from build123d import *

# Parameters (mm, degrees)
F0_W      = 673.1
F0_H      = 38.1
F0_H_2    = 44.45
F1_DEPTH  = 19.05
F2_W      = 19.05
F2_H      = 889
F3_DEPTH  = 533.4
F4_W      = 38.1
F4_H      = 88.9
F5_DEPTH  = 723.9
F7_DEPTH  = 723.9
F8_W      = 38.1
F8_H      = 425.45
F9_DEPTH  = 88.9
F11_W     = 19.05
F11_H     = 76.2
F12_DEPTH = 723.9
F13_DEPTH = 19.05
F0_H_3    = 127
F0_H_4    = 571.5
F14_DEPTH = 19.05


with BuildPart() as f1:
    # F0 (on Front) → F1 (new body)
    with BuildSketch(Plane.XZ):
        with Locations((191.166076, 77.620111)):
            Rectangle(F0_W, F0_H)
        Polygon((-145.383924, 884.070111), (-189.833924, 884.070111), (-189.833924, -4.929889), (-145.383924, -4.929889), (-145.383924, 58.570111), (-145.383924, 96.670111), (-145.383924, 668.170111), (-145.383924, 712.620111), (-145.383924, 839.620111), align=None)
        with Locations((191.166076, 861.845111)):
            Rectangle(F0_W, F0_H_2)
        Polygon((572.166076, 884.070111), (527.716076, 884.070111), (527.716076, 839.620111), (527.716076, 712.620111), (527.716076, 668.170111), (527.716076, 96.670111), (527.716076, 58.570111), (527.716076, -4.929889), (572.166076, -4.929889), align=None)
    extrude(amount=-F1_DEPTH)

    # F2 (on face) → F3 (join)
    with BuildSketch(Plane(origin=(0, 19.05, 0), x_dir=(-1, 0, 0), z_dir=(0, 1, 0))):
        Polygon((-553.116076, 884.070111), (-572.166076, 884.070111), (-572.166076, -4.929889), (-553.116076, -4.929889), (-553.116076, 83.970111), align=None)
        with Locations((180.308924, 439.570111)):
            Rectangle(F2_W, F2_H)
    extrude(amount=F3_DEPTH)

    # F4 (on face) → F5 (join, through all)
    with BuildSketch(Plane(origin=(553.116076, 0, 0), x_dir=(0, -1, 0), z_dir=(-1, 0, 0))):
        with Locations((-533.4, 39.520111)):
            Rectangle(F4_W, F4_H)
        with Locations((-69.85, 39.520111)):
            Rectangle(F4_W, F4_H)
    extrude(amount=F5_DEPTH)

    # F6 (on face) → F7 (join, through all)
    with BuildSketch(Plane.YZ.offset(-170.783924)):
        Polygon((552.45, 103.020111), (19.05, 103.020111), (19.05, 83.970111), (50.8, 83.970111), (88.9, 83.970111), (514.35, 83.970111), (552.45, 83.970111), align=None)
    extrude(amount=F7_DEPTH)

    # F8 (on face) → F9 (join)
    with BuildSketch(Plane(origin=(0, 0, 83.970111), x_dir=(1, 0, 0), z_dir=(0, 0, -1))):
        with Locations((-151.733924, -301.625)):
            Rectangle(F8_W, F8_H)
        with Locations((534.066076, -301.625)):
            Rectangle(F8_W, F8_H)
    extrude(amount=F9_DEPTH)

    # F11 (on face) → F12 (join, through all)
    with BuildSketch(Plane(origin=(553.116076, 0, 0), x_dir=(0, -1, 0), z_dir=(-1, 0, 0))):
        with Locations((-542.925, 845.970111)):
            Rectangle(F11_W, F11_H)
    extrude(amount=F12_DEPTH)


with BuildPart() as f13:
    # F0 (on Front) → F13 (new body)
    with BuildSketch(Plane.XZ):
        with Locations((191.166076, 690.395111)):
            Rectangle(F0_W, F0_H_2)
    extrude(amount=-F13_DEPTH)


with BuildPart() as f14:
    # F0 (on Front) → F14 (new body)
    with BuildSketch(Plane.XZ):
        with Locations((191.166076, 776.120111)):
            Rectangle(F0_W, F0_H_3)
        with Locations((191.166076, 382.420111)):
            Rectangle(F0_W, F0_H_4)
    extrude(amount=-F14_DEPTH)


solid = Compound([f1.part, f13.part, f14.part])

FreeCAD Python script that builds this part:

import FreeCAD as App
import Part
import Sketcher
Q = App.Units.Quantity

doc = App.newDocument("Part")
body = doc.addObject("PartDesign::Body", "Body")

# Sketch on XZ plane
sketch1 = body.newObject("Sketcher::SketchObject", "Sketch")
sketch1.AttachmentSupport = (doc.getObject("XZ_Plane"), [""])
sketch1.MapMode = "FlatFace"
sketch1.addGeometry(Part.LineSegment(App.Vector(-145, 59, 0), App.Vector(528, 59, 0)), False)
sketch1.addGeometry(Part.LineSegment(App.Vector(528, 59, 0), App.Vector(528, -5, 0)), False)
sketch1.addGeometry(Part.LineSegment(App.Vector(528, -5, 0), App.Vector(572, -5, 0)), False)
sketch1.addGeometry(Part.LineSegment(App.Vector(572, -5, 0), App.Vector(572, 884, 0)), False)
sketch1.addGeometry(Part.LineSegment(App.Vector(572, 884, 0), App.Vector(-190, 884, 0)), False)
sketch1.addGeometry(Part.LineSegment(App.Vector(-190, 884, 0), App.Vector(-190, -5, 0)), False)
sketch1.addGeometry(Part.LineSegment(App.Vector(-190, -5, 0), App.Vector(-145, -5, 0)), False)
sketch1.addGeometry(Part.LineSegment(App.Vector(-145, -5, 0), App.Vector(-145, 59, 0)), False)
sketch1.addGeometry(Part.LineSegment(App.Vector(528, 97, 0), App.Vector(-145, 97, 0)), False)
sketch1.addGeometry(Part.LineSegment(App.Vector(-145, 97, 0), App.Vector(-145, 840, 0)), False)
sketch1.addGeometry(Part.LineSegment(App.Vector(-145, 840, 0), App.Vector(528, 840, 0)), False)
sketch1.addGeometry(Part.LineSegment(App.Vector(528, 840, 0), App.Vector(528, 97, 0)), False)
sketch1.addConstraint(Sketcher.Constraint("Coincident", 0, 2, 1, 1))
sketch1.addConstraint(Sketcher.Constraint("Coincident", 1, 2, 2, 1))
sketch1.addConstraint(Sketcher.Constraint("Coincident", 2, 2, 3, 1))
sketch1.addConstraint(Sketcher.Constraint("Coincident", 3, 2, 4, 1))
sketch1.addConstraint(Sketcher.Constraint("Coincident", 4, 2, 5, 1))
sketch1.addConstraint(Sketcher.Constraint("Coincident", 5, 2, 6, 1))
sketch1.addConstraint(Sketcher.Constraint("Coincident", 6, 2, 7, 1))
sketch1.addConstraint(Sketcher.Constraint("Coincident", 7, 2, 0, 1))
sketch1.addConstraint(Sketcher.Constraint("Coincident", 8, 2, 9, 1))
sketch1.addConstraint(Sketcher.Constraint("Coincident", 9, 2, 10, 1))
sketch1.addConstraint(Sketcher.Constraint("Coincident", 10, 2, 11, 1))
sketch1.addConstraint(Sketcher.Constraint("Coincident", 11, 2, 8, 1))
sketch1.addConstraint(Sketcher.Constraint("Horizontal", 0))
sketch1.addConstraint(Sketcher.Constraint("Vertical", 1))
sketch1.addConstraint(Sketcher.Constraint("Horizontal", 2))
sketch1.addConstraint(Sketcher.Constraint("Vertical", 3))
sketch1.addConstraint(Sketcher.Constraint("Horizontal", 4))
sketch1.addConstraint(Sketcher.Constraint("Vertical", 5))
sketch1.addConstraint(Sketcher.Constraint("Horizontal", 6))
sketch1.addConstraint(Sketcher.Constraint("Vertical", 7))
sketch1.addConstraint(Sketcher.Constraint("Horizontal", 8))
sketch1.addConstraint(Sketcher.Constraint("Vertical", 9))
sketch1.addConstraint(Sketcher.Constraint("Horizontal", 10))
sketch1.addConstraint(Sketcher.Constraint("Vertical", 11))
sketch1.addConstraint(Sketcher.Constraint("Horizontal", 2, 2, 5, 2))
sketch1.addConstraint(Sketcher.Constraint("Vertical", 7, 2, 8, 2))
sketch1.addConstraint(Sketcher.Constraint("Vertical", 1, 2, 10, 2))
sketch1.addConstraint(Sketcher.Constraint("Equal", 2, 6))
sketch1.addConstraint(Sketcher.Constraint("DistanceX", 4, 2, 4, 1, Q("30 in")))
sketch1.addConstraint(Sketcher.Constraint("DistanceY", 3, 1, 3, 2, Q("35 in")))
sketch1.addConstraint(Sketcher.Constraint("DistanceX", 0, 1, 0, 2, Q("26.5 in")))
sketch1.addConstraint(Sketcher.Constraint("DistanceY", 1, 2, 1, 1, Q("2.5 in")))
sketch1.addConstraint(Sketcher.Constraint("DistanceY", 6, 2, 8, 2, Q("4 in")))
sketch1.addConstraint(Sketcher.Constraint("DistanceY", 9, 1, 9, 2, Q("29.25 in")))
sketch1.addConstraint(Sketcher.Constraint("DistanceY", -1, 1, 0, 2, 58.570111))
sketch1.addConstraint(Sketcher.Constraint("DistanceX", -1, 1, 0, 2, 527.716076))
pad1 = body.newObject("PartDesign::Pad", "Pad")
pad1.Profile = sketch1
pad1.Length = Q("0.75 in")
pad1.Reversed = True

# Sketch on XZ plane
sketch2 = body.newObject("Sketcher::SketchObject", "Sketch001")
sketch2.AttachmentSupport = (doc.getObject("XZ_Plane"), [""])
sketch2.MapMode = "FlatFace"
sketch2.AttachmentOffset = App.Placement(App.Vector(0, 0, -0.75 * 25.4), App.Rotation())
sketch2.addGeometry(Part.LineSegment(App.Vector(553, 884, 0), App.Vector(572, 884, 0)), False)
sketch2.addGeometry(Part.LineSegment(App.Vector(572, 884, 0), App.Vector(572, -5, 0)), False)
sketch2.addGeometry(Part.LineSegment(App.Vector(572, -5, 0), App.Vector(553, -5, 0)), False)
sketch2.addGeometry(Part.LineSegment(App.Vector(553, -5, 0), App.Vector(553, 884, 0)), False)
sketch2.addGeometry(Part.LineSegment(App.Vector(-171, 884, 0), App.Vector(-171, -5, 0)), False)
sketch2.addGeometry(Part.LineSegment(App.Vector(-171, -5, 0), App.Vector(-190, -5, 0)), False)
sketch2.addGeometry(Part.LineSegment(App.Vector(-190, -5, 0), App.Vector(-190, 884, 0)), False)
sketch2.addGeometry(Part.LineSegment(App.Vector(-190, 884, 0), App.Vector(-171, 884, 0)), False)
sketch2.addConstraint(Sketcher.Constraint("Coincident", 0, 2, 1, 1))
sketch2.addConstraint(Sketcher.Constraint("Coincident", 1, 2, 2, 1))
sketch2.addConstraint(Sketcher.Constraint("Coincident", 2, 2, 3, 1))
sketch2.addConstraint(Sketcher.Constraint("Coincident", 3, 2, 0, 1))
sketch2.addConstraint(Sketcher.Constraint("Coincident", 4, 2, 5, 1))
sketch2.addConstraint(Sketcher.Constraint("Coincident", 5, 2, 6, 1))
sketch2.addConstraint(Sketcher.Constraint("Coincident", 6, 2, 7, 1))
sketch2.addConstraint(Sketcher.Constraint("Coincident", 7, 2, 4, 1))
sketch2.addConstraint(Sketcher.Constraint("Horizontal", 0))
sketch2.addConstraint(Sketcher.Constraint("Vertical", 1))
sketch2.addConstraint(Sketcher.Constraint("Horizontal", 2))
sketch2.addConstraint(Sketcher.Constraint("Vertical", 3))
sketch2.addConstraint(Sketcher.Constraint("Vertical", 4))
sketch2.addConstraint(Sketcher.Constraint("Horizontal", 5))
sketch2.addConstraint(Sketcher.Constraint("Vertical", 6))
sketch2.addConstraint(Sketcher.Constraint("Horizontal", 7))
sketch2.addConstraint(Sketcher.Constraint("Horizontal", 2, 2, 4, 2))
sketch2.addConstraint(Sketcher.Constraint("Horizontal", 3, 2, 6, 2))
sketch2.addConstraint(Sketcher.Constraint("Equal", 2, 5))
sketch2.addConstraint(Sketcher.Constraint("DistanceY", 1, 2, 1, 1, Q("35 in")))
sketch2.addConstraint(Sketcher.Constraint("DistanceX", 5, 2, 1, 2, Q("30 in")))
sketch2.addConstraint(Sketcher.Constraint("DistanceX", 0, 1, 0, 2, Q("0.75 in")))
sketch2.addConstraint(Sketcher.Constraint("DistanceY", -1, 1, 0, 2, 884.070111))
sketch2.addConstraint(Sketcher.Constraint("DistanceX", -1, 1, 0, 2, 572.166076))
pad2 = body.newObject("PartDesign::Pad", "Pad001")
pad2.Profile = sketch2
pad2.Length = Q("21 in")
pad2.Reversed = True

# Sketch on YZ plane
sketch3 = body.newObject("Sketcher::SketchObject", "Sketch002")
sketch3.AttachmentSupport = (doc.getObject("YZ_Plane"), [""])
sketch3.MapMode = "FlatFace"
sketch3.AttachmentOffset = App.Placement(App.Vector(0, 0, 553.116076), App.Rotation())
sketch3.addGeometry(Part.LineSegment(App.Vector(552, 84, 0), App.Vector(552, -5, 0)), False)
sketch3.addGeometry(Part.LineSegment(App.Vector(552, -5, 0), App.Vector(514, -5, 0)), False)
sketch3.addGeometry(Part.LineSegment(App.Vector(514, -5, 0), App.Vector(514, 84, 0)), False)
sketch3.addGeometry(Part.LineSegment(App.Vector(514, 84, 0), App.Vector(552, 84, 0)), False)
sketch3.addGeometry(Part.LineSegment(App.Vector(89, 84, 0), App.Vector(89, -5, 0)), False)
sketch3.addGeometry(Part.LineSegment(App.Vector(89, -5, 0), App.Vector(51, -5, 0)), False)
sketch3.addGeometry(Part.LineSegment(App.Vector(51, -5, 0), App.Vector(51, 84, 0)), False)
sketch3.addGeometry(Part.LineSegment(App.Vector(51, 84, 0), App.Vector(89, 84, 0)), False)
sketch3.addConstraint(Sketcher.Constraint("Coincident", 0, 2, 1, 1))
sketch3.addConstraint(Sketcher.Constraint("Coincident", 1, 2, 2, 1))
sketch3.addConstraint(Sketcher.Constraint("Coincident", 2, 2, 3, 1))
sketch3.addConstraint(Sketcher.Constraint("Coincident", 3, 2, 0, 1))
sketch3.addConstraint(Sketcher.Constraint("Coincident", 4, 2, 5, 1))
sketch3.addConstraint(Sketcher.Constraint("Coincident", 5, 2, 6, 1))
sketch3.addConstraint(Sketcher.Constraint("Coincident", 6, 2, 7, 1))
sketch3.addConstraint(Sketcher.Constraint("Coincident", 7, 2, 4, 1))
sketch3.addConstraint(Sketcher.Constraint("Vertical", 0))
sketch3.addConstraint(Sketcher.Constraint("Horizontal", 1))
sketch3.addConstraint(Sketcher.Constraint("Vertical", 2))
sketch3.addConstraint(Sketcher.Constraint("Horizontal", 3))
sketch3.addConstraint(Sketcher.Constraint("Vertical", 4))
sketch3.addConstraint(Sketcher.Constraint("Horizontal", 5))
sketch3.addConstraint(Sketcher.Constraint("Vertical", 6))
sketch3.addConstraint(Sketcher.Constraint("Horizontal", 7))
sketch3.addConstraint(Sketcher.Constraint("Horizontal", 1, 2, 4, 2))
sketch3.addConstraint(Sketcher.Constraint("Horizontal", 3, 2, 6, 2))
sketch3.addConstraint(Sketcher.Constraint("Equal", 3, 5))
sketch3.addConstraint(Sketcher.Constraint("DistanceX", 1, 2, 1, 1, Q("1.5 in")))
sketch3.addConstraint(Sketcher.Constraint("DistanceY", 0, 2, 0, 1, Q("3.5 in")))
sketch3.addConstraint(Sketcher.Constraint("DistanceX", -1, 1, 5, 2, Q("2 in")))
sketch3.addConstraint(Sketcher.Constraint("DistanceX", -1, 1, 0, 2, Q("21.75 in")))
sketch3.addConstraint(Sketcher.Constraint("DistanceY", 0, 2, -1, 1, 4.929889))
pad3 = body.newObject("PartDesign::Pad", "Pad002")
pad3.Profile = sketch3
pad3.Type = "UpToLast"
pad3.Reversed = True

# Sketch on YZ plane
sketch4 = body.newObject("Sketcher::SketchObject", "Sketch003")
sketch4.AttachmentSupport = (doc.getObject("YZ_Plane"), [""])
sketch4.MapMode = "FlatFace"
sketch4.AttachmentOffset = App.Placement(App.Vector(0, 0, -170.783924), App.Rotation())
sketch4.addGeometry(Part.LineSegment(App.Vector(552, 103, 0), App.Vector(19, 103, 0)), False)
sketch4.addGeometry(Part.LineSegment(App.Vector(19, 103, 0), App.Vector(19, 84, 0)), False)
sketch4.addGeometry(Part.LineSegment(App.Vector(19, 84, 0), App.Vector(552, 84, 0)), False)
sketch4.addGeometry(Part.LineSegment(App.Vector(552, 84, 0), App.Vector(552, 103, 0)), False)
sketch4.addConstraint(Sketcher.Constraint("Coincident", 0, 2, 1, 1))
sketch4.addConstraint(Sketcher.Constraint("Coincident", 1, 2, 2, 1))
sketch4.addConstraint(Sketcher.Constraint("Coincident", 2, 2, 3, 1))
sketch4.addConstraint(Sketcher.Constraint("Coincident", 3, 2, 0, 1))
sketch4.addConstraint(Sketcher.Constraint("Horizontal", 0))
sketch4.addConstraint(Sketcher.Constraint("Vertical", 1))
sketch4.addConstraint(Sketcher.Constraint("Horizontal", 2))
sketch4.addConstraint(Sketcher.Constraint("Vertical", 3))
sketch4.addConstraint(Sketcher.Constraint("DistanceX", 0, 2, 0, 1, Q("21 in")))
sketch4.addConstraint(Sketcher.Constraint("DistanceY", 1, 2, 1, 1, Q("0.75 in")))
sketch4.addConstraint(Sketcher.Constraint("DistanceX", -1, 1, 0, 2, Q("0.75 in")))
sketch4.addConstraint(Sketcher.Constraint("DistanceY", -1, 1, 0, 2, 103.020111))
pad4 = body.newObject("PartDesign::Pad", "Pad003")
pad4.Profile = sketch4
pad4.Type = "UpToLast"

# Sketch on XY plane
sketch5 = body.newObject("Sketcher::SketchObject", "Sketch004")
sketch5.AttachmentSupport = (doc.getObject("XY_Plane"), [""])
sketch5.MapMode = "FlatFace"
sketch5.AttachmentOffset = App.Placement(App.Vector(0, 0, 83.970111), App.Rotation())
sketch5.addGeometry(Part.LineSegment(App.Vector(-171, 89, 0), App.Vector(-171, 514, 0)), False)
sketch5.addGeometry(Part.LineSegment(App.Vector(-171, 514, 0), App.Vector(-133, 514, 0)), False)
sketch5.addGeometry(Part.LineSegment(App.Vector(-133, 514, 0), App.Vector(-133, 89, 0)), False)
sketch5.addGeometry(Part.LineSegment(App.Vector(-133, 89, 0), App.Vector(-171, 89, 0)), False)
sketch5.addGeometry(Part.LineSegment(App.Vector(515, 89, 0), App.Vector(515, 514, 0)), False)
sketch5.addGeometry(Part.LineSegment(App.Vector(515, 514, 0), App.Vector(553, 514, 0)), False)
sketch5.addGeometry(Part.LineSegment(App.Vector(553, 514, 0), App.Vector(553, 89, 0)), False)
sketch5.addGeometry(Part.LineSegment(App.Vector(553, 89, 0), App.Vector(515, 89, 0)), False)
sketch5.addConstraint(Sketcher.Constraint("Coincident", 0, 2, 1, 1))
sketch5.addConstraint(Sketcher.Constraint("Coincident", 1, 2, 2, 1))
sketch5.addConstraint(Sketcher.Constraint("Coincident", 2, 2, 3, 1))
sketch5.addConstraint(Sketcher.Constraint("Coincident", 3, 2, 0, 1))
sketch5.addConstraint(Sketcher.Constraint("Coincident", 4, 2, 5, 1))
sketch5.addConstraint(Sketcher.Constraint("Coincident", 5, 2, 6, 1))
sketch5.addConstraint(Sketcher.Constraint("Coincident", 6, 2, 7, 1))
sketch5.addConstraint(Sketcher.Constraint("Coincident", 7, 2, 4, 1))
sketch5.addConstraint(Sketcher.Constraint("Vertical", 0))
sketch5.addConstraint(Sketcher.Constraint("Horizontal", 1))
sketch5.addConstraint(Sketcher.Constraint("Vertical", 2))
sketch5.addConstraint(Sketcher.Constraint("Horizontal", 3))
sketch5.addConstraint(Sketcher.Constraint("Vertical", 4))
sketch5.addConstraint(Sketcher.Constraint("Horizontal", 5))
sketch5.addConstraint(Sketcher.Constraint("Vertical", 6))
sketch5.addConstraint(Sketcher.Constraint("Horizontal", 7))
sketch5.addConstraint(Sketcher.Constraint("Horizontal", 1, 2, 4, 2))
sketch5.addConstraint(Sketcher.Constraint("Horizontal", 3, 2, 6, 2))
sketch5.addConstraint(Sketcher.Constraint("Equal", 3, 5))
sketch5.addConstraint(Sketcher.Constraint("DistanceX", 1, 1, 1, 2, Q("1.5 in")))
sketch5.addConstraint(Sketcher.Constraint("DistanceX", 0, 2, 4, 2, Q("27 in")))
sketch5.addConstraint(Sketcher.Constraint("DistanceY", 0, 1, 0, 2, Q("16.75 in")))
sketch5.addConstraint(Sketcher.Constraint("DistanceY", -1, 1, 2, 2, Q("3.5 in")))
sketch5.addConstraint(Sketcher.Constraint("DistanceX", 0, 2, -1, 1, 170.783924))
pad5 = body.newObject("PartDesign::Pad", "Pad004")
pad5.Profile = sketch5
pad5.Length = Q("3.5 in")
pad5.Reversed = True

# Sketch on YZ plane
sketch6 = body.newObject("Sketcher::SketchObject", "Sketch005")
sketch6.AttachmentSupport = (doc.getObject("YZ_Plane"), [""])
sketch6.MapMode = "FlatFace"
sketch6.AttachmentOffset = App.Placement(App.Vector(0, 0, 553.116076), App.Rotation())
sketch6.addGeometry(Part.LineSegment(App.Vector(552, 884, 0), App.Vector(552, 808, 0)), False)
sketch6.addGeometry(Part.LineSegment(App.Vector(552, 808, 0), App.Vector(533, 808, 0)), False)
sketch6.addGeometry(Part.LineSegment(App.Vector(533, 808, 0), App.Vector(533, 884, 0)), False)
sketch6.addGeometry(Part.LineSegment(App.Vector(533, 884, 0), App.Vector(552, 884, 0)), False)
sketch6.addConstraint(Sketcher.Constraint("Coincident", 0, 2, 1, 1))
sketch6.addConstraint(Sketcher.Constraint("Coincident", 1, 2, 2, 1))
sketch6.addConstraint(Sketcher.Constraint("Coincident", 2, 2, 3, 1))
sketch6.addConstraint(Sketcher.Constraint("Coincident", 3, 2, 0, 1))
sketch6.addConstraint(Sketcher.Constraint("Vertical", 0))
sketch6.addConstraint(Sketcher.Constraint("Horizontal", 1))
sketch6.addConstraint(Sketcher.Constraint("Vertical", 2))
sketch6.addConstraint(Sketcher.Constraint("Horizontal", 3))
sketch6.addConstraint(Sketcher.Constraint("DistanceY", 0, 2, 0, 1, Q("3 in")))
sketch6.addConstraint(Sketcher.Constraint("DistanceX", -1, 1, 1, 2, Q("21 in")))
sketch6.addConstraint(Sketcher.Constraint("DistanceX", 1, 2, 1, 1, Q("0.75 in")))
sketch6.addConstraint(Sketcher.Constraint("DistanceY", -1, 1, 0, 2, 807.870111))
pad6 = body.newObject("PartDesign::Pad", "Pad005")
pad6.Profile = sketch6
pad6.Type = "UpToLast"
pad6.Reversed = True
body2 = doc.addObject("PartDesign::Body", "Body001")

# Sketch on XZ plane
sketch7 = body2.newObject("Sketcher::SketchObject", "Sketch006")
sketch7.AttachmentSupport = (doc.getObject("XZ_Plane001"), [""])
sketch7.MapMode = "FlatFace"
sketch7.addGeometry(Part.LineSegment(App.Vector(-145, 713, 0), App.Vector(-145, 668, 0)), False)
sketch7.addGeometry(Part.LineSegment(App.Vector(-145, 668, 0), App.Vector(528, 668, 0)), False)
sketch7.addGeometry(Part.LineSegment(App.Vector(528, 668, 0), App.Vector(528, 713, 0)), False)
sketch7.addGeometry(Part.LineSegment(App.Vector(528, 713, 0), App.Vector(-145, 713, 0)), False)
sketch7.addConstraint(Sketcher.Constraint("Coincident", 0, 2, 1, 1))
sketch7.addConstraint(Sketcher.Constraint("Coincident", 1, 2, 2, 1))
sketch7.addConstraint(Sketcher.Constraint("Coincident", 2, 2, 3, 1))
sketch7.addConstraint(Sketcher.Constraint("Coincident", 3, 2, 0, 1))
sketch7.addConstraint(Sketcher.Constraint("Vertical", 0))
sketch7.addConstraint(Sketcher.Constraint("Horizontal", 1))
sketch7.addConstraint(Sketcher.Constraint("Vertical", 2))
sketch7.addConstraint(Sketcher.Constraint("Horizontal", 3))
sketch7.addConstraint(Sketcher.Constraint("DistanceX", 1, 1, 1, 2, Q("26.5 in")))
sketch7.addConstraint(Sketcher.Constraint("DistanceY", 0, 2, 0, 1, Q("1.75 in")))
sketch7.addConstraint(Sketcher.Constraint("DistanceY", -1, 1, 0, 2, 668.170111))
sketch7.addConstraint(Sketcher.Constraint("DistanceX", 0, 2, -1, 1, 145.383924))
pad7 = body2.newObject("PartDesign::Pad", "Pad006")
pad7.Profile = sketch7
pad7.Length = Q("0.75 in")
pad7.Reversed = True
body3 = doc.addObject("PartDesign::Body", "Body002")
body3.AllowCompound = True

# Sketch on XZ plane
sketch8 = body3.newObject("Sketcher::SketchObject", "Sketch007")
sketch8.AttachmentSupport = (doc.getObject("XZ_Plane002"), [""])
sketch8.MapMode = "FlatFace"
sketch8.addGeometry(Part.LineSegment(App.Vector(-145, 840, 0), App.Vector(-145, 713, 0)), False)
sketch8.addGeometry(Part.LineSegment(App.Vector(-145, 713, 0), App.Vector(528, 713, 0)), False)
sketch8.addGeometry(Part.LineSegment(App.Vector(528, 713, 0), App.Vector(528, 840, 0)), False)
sketch8.addGeometry(Part.LineSegment(App.Vector(528, 840, 0), App.Vector(-145, 840, 0)), False)
sketch8.addGeometry(Part.LineSegment(App.Vector(-145, 668, 0), App.Vector(-145, 97, 0)), False)
sketch8.addGeometry(Part.LineSegment(App.Vector(-145, 97, 0), App.Vector(528, 97, 0)), False)
sketch8.addGeometry(Part.LineSegment(App.Vector(528, 97, 0), App.Vector(528, 668, 0)), False)
sketch8.addGeometry(Part.LineSegment(App.Vector(528, 668, 0), App.Vector(-145, 668, 0)), False)
sketch8.addConstraint(Sketcher.Constraint("Coincident", 0, 2, 1, 1))
sketch8.addConstraint(Sketcher.Constraint("Coincident", 1, 2, 2, 1))
sketch8.addConstraint(Sketcher.Constraint("Coincident", 2, 2, 3, 1))
sketch8.addConstraint(Sketcher.Constraint("Coincident", 3, 2, 0, 1))
sketch8.addConstraint(Sketcher.Constraint("Coincident", 4, 2, 5, 1))
sketch8.addConstraint(Sketcher.Constraint("Coincident", 5, 2, 6, 1))
sketch8.addConstraint(Sketcher.Constraint("Coincident", 6, 2, 7, 1))
sketch8.addConstraint(Sketcher.Constraint("Coincident", 7, 2, 4, 1))
sketch8.addConstraint(Sketcher.Constraint("Vertical", 0))
sketch8.addConstraint(Sketcher.Constraint("Horizontal", 1))
sketch8.addConstraint(Sketcher.Constraint("Vertical", 2))
sketch8.addConstraint(Sketcher.Constraint("Horizontal", 3))
sketch8.addConstraint(Sketcher.Constraint("Vertical", 4))
sketch8.addConstraint(Sketcher.Constraint("Horizontal", 5))
sketch8.addConstraint(Sketcher.Constraint("Vertical", 6))
sketch8.addConstraint(Sketcher.Constraint("Horizontal", 7))
sketch8.addConstraint(Sketcher.Constraint("Vertical", 3, 2, 4, 2))
sketch8.addConstraint(Sketcher.Constraint("Vertical", 2, 2, 5, 2))
sketch8.addConstraint(Sketcher.Constraint("DistanceY", 0, 2, 0, 1, Q("5 in")))
sketch8.addConstraint(Sketcher.Constraint("DistanceX", 1, 1, 1, 2, Q("26.5 in")))
sketch8.addConstraint(Sketcher.Constraint("DistanceY", 4, 2, 4, 1, Q("22.5 in")))
sketch8.addConstraint(Sketcher.Constraint("DistanceY", 4, 2, 0, 2, Q("24.25 in")))
sketch8.addConstraint(Sketcher.Constraint("DistanceY", -1, 1, 0, 2, 712.620111))
sketch8.addConstraint(Sketcher.Constraint("DistanceX", 0, 2, -1, 1, 145.383924))
pad8 = body3.newObject("PartDesign::Pad", "Pad007")
pad8.Profile = sketch8
pad8.Length = Q("0.75 in")
pad8.Reversed = True

doc.recompute()
